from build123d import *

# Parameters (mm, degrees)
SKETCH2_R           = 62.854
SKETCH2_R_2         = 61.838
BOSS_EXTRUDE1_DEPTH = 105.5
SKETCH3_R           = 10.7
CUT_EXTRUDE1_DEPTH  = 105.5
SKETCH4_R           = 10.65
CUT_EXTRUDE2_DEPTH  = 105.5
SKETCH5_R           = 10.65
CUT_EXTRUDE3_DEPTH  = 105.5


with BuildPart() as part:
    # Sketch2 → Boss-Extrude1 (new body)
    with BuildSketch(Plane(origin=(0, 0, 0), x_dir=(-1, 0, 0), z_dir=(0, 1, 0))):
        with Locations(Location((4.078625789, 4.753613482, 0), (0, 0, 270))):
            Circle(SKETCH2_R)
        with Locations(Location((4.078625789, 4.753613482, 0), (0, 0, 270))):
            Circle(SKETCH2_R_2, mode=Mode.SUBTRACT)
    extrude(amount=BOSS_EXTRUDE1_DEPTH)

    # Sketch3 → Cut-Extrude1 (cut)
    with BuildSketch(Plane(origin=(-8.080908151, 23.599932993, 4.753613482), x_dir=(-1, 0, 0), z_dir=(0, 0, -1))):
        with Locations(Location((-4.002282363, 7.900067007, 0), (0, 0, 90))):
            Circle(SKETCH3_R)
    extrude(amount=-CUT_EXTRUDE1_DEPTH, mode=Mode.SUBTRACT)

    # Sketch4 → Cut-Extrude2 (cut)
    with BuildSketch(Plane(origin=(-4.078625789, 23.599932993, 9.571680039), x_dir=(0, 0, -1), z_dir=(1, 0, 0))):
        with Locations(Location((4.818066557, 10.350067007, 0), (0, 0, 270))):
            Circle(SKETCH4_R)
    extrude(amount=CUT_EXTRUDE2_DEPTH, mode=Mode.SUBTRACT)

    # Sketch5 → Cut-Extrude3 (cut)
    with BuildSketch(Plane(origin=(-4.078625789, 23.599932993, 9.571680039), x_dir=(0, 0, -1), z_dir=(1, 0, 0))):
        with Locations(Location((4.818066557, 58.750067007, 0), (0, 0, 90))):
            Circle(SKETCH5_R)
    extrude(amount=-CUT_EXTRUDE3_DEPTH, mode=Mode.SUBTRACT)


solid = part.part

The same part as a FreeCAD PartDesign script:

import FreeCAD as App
import Part
import Sketcher

V = App.Vector

doc = App.newDocument("Part")
body = doc.addObject("PartDesign::Body", "Body")

# Sketch on XZ plane
sketch1 = body.newObject("Sketcher::SketchObject", "Sketch")
sketch1.AttachmentSupport = (doc.getObject("XZ_Plane"), [""])
sketch1.MapMode = "FlatFace"
sketch1.addGeometry(Part.Circle(V(-4.078626, 4.753613, 0), V(0, 0, 1), 62.854), False)
sketch1.addGeometry(Part.Circle(V(-4.078626, 4.753613, 0), V(0, 0, 1), 61.838), False)
sketch1.addConstraint(Sketcher.Constraint("Coincident", 1, 3, 0, 3))
sketch1.addConstraint(Sketcher.Constraint("Diameter", 0, 125.708))
sketch1.addConstraint(Sketcher.Constraint("Diameter", 1, 123.676))
sketch1.addConstraint(Sketcher.Constraint("DistanceX", 0, 3, -1, 1, 4.078626))
sketch1.addConstraint(Sketcher.Constraint("DistanceY", -1, 1, 0, 3, 4.753613))
pad1 = body.newObject("PartDesign::Pad", "Pad")
pad1.Profile = sketch1
pad1.Length = 105.5
pad1.Reversed = True

# Sketch on XY plane
sketch2 = body.newObject("Sketcher::SketchObject", "Sketch001")
sketch2.AttachmentSupport = (doc.getObject("XY_Plane"), [""])
sketch2.MapMode = "FlatFace"
sketch2.AttachmentOffset = App.Placement(V(0, 0, 4.753613), App.Rotation())
sketch2.addGeometry(Part.Circle(V(-4.078626, 31.5, 0), V(0, 0, 1), 10.7), False)
sketch2.addConstraint(Sketcher.Constraint("Diameter", 0, 21.4))
sketch2.addConstraint(Sketcher.Constraint("DistanceY", -1, 1, 0, 3, 31.5))
sketch2.addConstraint(Sketcher.Constraint("DistanceX", 0, 3, -1, 1, 4.078626))
pocket1 = body.newObject("PartDesign::Pocket", "Pocket")
pocket1.Profile = sketch2
pocket1.Length = 105.5
pocket1.Reversed = True

# Sketch on YZ plane
sketch3 = body.newObject("Sketcher::SketchObject", "Sketch002")
sketch3.AttachmentSupport = (doc.getObject("YZ_Plane"), [""])
sketch3.MapMode = "FlatFace"
sketch3.AttachmentOffset = App.Placement(V(0, 0, -4.078626), App.Rotation())
sketch3.addGeometry(Part.Circle(V(33.95, 4.753613, 0), V(0, 0, 1), 10.65), False)
sketch3.addConstraint(Sketcher.Constraint("Diameter", 0, 21.3))
sketch3.addConstraint(Sketcher.Constraint("DistanceX", -1, 1, 0, 3, 33.95))
sketch3.addConstraint(Sketcher.Constraint("DistanceY", -1, 1, 0, 3, 4.753613))
pocket2 = body.newObject("PartDesign::Pocket", "Pocket001")
pocket2.Profile = sketch3
pocket2.Length = 105.5
pocket2.Reversed = True

# Sketch on YZ plane
sketch4 = body.newObject("Sketcher::SketchObject", "Sketch003")
sketch4.AttachmentSupport = (doc.getObject("YZ_Plane"), [""])
sketch4.MapMode = "FlatFace"
sketch4.AttachmentOffset = App.Placement(V(0, 0, -4.078626), App.Rotation())
sketch4.addGeometry(Part.Circle(V(82.35, 4.753613, 0), V(0, 0, 1), 10.65), False)
sketch4.addConstraint(Sketcher.Constraint("Diameter", 0, 21.3))
sketch4.addConstraint(Sketcher.Constraint("DistanceX", -1, 1, 0, 3, 82.35))
sketch4.addConstraint(Sketcher.Constraint("DistanceY", -1, 1, 0, 3, 4.753613))
pocket3 = body.newObject("PartDesign::Pocket", "Pocket002")
pocket3.Profile = sketch4
pocket3.Length = 105.5

doc.recompute()
